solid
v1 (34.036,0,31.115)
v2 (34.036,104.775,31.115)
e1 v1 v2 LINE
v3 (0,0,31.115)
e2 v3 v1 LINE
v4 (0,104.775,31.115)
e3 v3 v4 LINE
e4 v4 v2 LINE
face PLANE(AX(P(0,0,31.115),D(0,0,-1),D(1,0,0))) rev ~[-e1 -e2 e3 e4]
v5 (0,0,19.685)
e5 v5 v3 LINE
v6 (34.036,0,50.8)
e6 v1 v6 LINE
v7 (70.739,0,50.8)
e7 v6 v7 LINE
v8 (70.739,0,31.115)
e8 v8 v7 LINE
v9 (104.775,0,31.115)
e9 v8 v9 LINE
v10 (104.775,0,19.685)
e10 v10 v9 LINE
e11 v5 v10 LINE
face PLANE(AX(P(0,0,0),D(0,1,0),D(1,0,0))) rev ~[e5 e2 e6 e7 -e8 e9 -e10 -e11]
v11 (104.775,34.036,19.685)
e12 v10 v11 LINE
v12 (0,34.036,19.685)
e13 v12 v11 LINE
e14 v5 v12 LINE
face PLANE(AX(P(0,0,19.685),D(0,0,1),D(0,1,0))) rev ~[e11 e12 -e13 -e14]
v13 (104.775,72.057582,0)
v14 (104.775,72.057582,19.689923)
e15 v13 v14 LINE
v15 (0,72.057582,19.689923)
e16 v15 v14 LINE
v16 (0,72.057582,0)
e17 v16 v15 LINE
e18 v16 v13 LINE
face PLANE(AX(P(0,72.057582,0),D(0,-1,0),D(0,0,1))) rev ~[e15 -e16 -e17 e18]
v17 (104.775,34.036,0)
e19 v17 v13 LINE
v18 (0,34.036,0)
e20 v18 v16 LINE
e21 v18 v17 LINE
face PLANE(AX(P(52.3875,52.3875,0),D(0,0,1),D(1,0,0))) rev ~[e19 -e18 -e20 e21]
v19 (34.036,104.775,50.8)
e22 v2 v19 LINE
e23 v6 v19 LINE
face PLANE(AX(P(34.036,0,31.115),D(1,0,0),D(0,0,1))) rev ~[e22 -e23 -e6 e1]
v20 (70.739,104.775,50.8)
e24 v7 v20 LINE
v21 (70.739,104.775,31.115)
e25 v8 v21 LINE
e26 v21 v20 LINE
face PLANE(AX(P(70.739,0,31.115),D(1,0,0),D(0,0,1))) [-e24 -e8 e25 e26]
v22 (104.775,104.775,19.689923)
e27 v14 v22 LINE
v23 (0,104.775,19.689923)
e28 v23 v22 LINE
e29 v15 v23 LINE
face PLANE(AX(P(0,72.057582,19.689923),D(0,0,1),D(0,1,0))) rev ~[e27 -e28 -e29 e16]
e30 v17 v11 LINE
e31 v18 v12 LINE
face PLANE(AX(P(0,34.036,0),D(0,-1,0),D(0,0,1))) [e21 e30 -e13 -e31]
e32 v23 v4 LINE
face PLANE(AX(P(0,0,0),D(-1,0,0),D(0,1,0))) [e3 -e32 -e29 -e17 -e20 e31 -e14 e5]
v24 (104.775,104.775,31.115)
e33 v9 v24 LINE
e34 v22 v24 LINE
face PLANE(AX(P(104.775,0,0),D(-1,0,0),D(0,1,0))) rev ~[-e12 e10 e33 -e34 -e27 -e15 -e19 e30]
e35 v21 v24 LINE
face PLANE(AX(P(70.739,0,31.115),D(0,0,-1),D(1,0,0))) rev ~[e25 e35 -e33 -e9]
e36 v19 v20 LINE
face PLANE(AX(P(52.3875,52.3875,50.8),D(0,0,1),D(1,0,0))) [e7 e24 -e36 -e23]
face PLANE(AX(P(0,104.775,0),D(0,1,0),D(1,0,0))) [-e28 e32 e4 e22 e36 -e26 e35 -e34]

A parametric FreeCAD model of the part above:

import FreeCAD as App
import Part
import Sketcher
Q = App.Units.Quantity

doc = App.newDocument("Part")
body = doc.addObject("PartDesign::Body", "Body")

sketch1 = doc.addObject("Sketcher::SketchObject", "Sketch")
body.addObject(sketch1)
sketch1.AttachmentSupport = (doc.XY_Plane, [""])
sketch1.MapMode = "FlatFace"
sketch1.addGeometry(Part.LineSegment(App.Vector(0, 105, 0), App.Vector(0, 0, 0)), False)
sketch1.addGeometry(Part.LineSegment(App.Vector(0, 0, 0), App.Vector(105, 0, 0)), False)
sketch1.addGeometry(Part.LineSegment(App.Vector(105, 0, 0), App.Vector(105, 105, 0)), False)
sketch1.addGeometry(Part.LineSegment(App.Vector(105, 105, 0), App.Vector(0, 105, 0)), False)
sketch1.addConstraint(Sketcher.Constraint("Coincident", 0, 2, 1, 1))
sketch1.addConstraint(Sketcher.Constraint("Coincident", 1, 2, 2, 1))
sketch1.addConstraint(Sketcher.Constraint("Coincident", 2, 2, 3, 1))
sketch1.addConstraint(Sketcher.Constraint("Coincident", 3, 2, 0, 1))
sketch1.addConstraint(Sketcher.Constraint("Vertical", 0))
sketch1.addConstraint(Sketcher.Constraint("Horizontal", 1))
sketch1.addConstraint(Sketcher.Constraint("Vertical", 2))
sketch1.addConstraint(Sketcher.Constraint("Horizontal", 3))
sketch1.addConstraint(Sketcher.Constraint("Coincident", 0, 2, -1, 1))
sketch1.addConstraint(Sketcher.Constraint("Equal", 3, 0))
sketch1.addConstraint(Sketcher.Constraint("DistanceX", 1, 1, 1, 2, Q("4.125 in")))
pad1 = doc.addObject("PartDesign::Pad", "Pad")
body.addObject(pad1)
pad1.Profile = sketch1
pad1.Length = Q("2 in")

sketch2 = doc.addObject("Sketcher::SketchObject", "Sketch001")
body.addObject(sketch2)
sketch2.AttachmentSupport = (doc.XZ_Plane, [""])
sketch2.MapMode = "FlatFace"
sketch2.addGeometry(Part.LineSegment(App.Vector(71, 51, 0), App.Vector(71, 31, 0)), False)
sketch2.addGeometry(Part.LineSegment(App.Vector(71, 31, 0), App.Vector(105, 31, 0)), False)
sketch2.addGeometry(Part.LineSegment(App.Vector(105, 31, 0), App.Vector(105, 51, 0)), False)
sketch2.addGeometry(Part.LineSegment(App.Vector(105, 51, 0), App.Vector(71, 51, 0)), False)
sketch2.addGeometry(Part.LineSegment(App.Vector(0, 51, 0), App.Vector(0, 31, 0)), False)
sketch2.addGeometry(Part.LineSegment(App.Vector(0, 31, 0), App.Vector(34, 31, 0)), False)
sketch2.addGeometry(Part.LineSegment(App.Vector(34, 31, 0), App.Vector(34, 51, 0)), False)
sketch2.addGeometry(Part.LineSegment(App.Vector(34, 51, 0), App.Vector(0, 51, 0)), False)
sketch2.addConstraint(Sketcher.Constraint("Coincident", 0, 2, 1, 1))
sketch2.addConstraint(Sketcher.Constraint("Coincident", 1, 2, 2, 1))
sketch2.addConstraint(Sketcher.Constraint("Coincident", 2, 2, 3, 1))
sketch2.addConstraint(Sketcher.Constraint("Coincident", 3, 2, 0, 1))
sketch2.addConstraint(Sketcher.Constraint("Coincident", 4, 2, 5, 1))
sketch2.addConstraint(Sketcher.Constraint("Coincident", 5, 2, 6, 1))
sketch2.addConstraint(Sketcher.Constraint("Coincident", 6, 2, 7, 1))
sketch2.addConstraint(Sketcher.Constraint("Coincident", 7, 2, 4, 1))
sketch2.addConstraint(Sketcher.Constraint("Vertical", 0))
sketch2.addConstraint(Sketcher.Constraint("Horizontal", 1))
sketch2.addConstraint(Sketcher.Constraint("Vertical", 2))
sketch2.addConstraint(Sketcher.Constraint("Horizontal", 3))
sketch2.addConstraint(Sketcher.Constraint("Vertical", 4))
sketch2.addConstraint(Sketcher.Constraint("Horizontal", 5))
sketch2.addConstraint(Sketcher.Constraint("Vertical", 6))
sketch2.addConstraint(Sketcher.Constraint("Horizontal", 7))
sketch2.addConstraint(Sketcher.Constraint("PointOnObject", 4, 2, -2))
sketch2.addConstraint(Sketcher.Constraint("Horizontal", 1, 2, 4, 2))
sketch2.addConstraint(Sketcher.Constraint("Horizontal", 3, 2, 6, 2))
sketch2.addConstraint(Sketcher.Constraint("Equal", 3, 5))
sketch2.addConstraint(Sketcher.Constraint("DistanceY", -1, 1, 2, 2, Q("2 in")))
sketch2.addConstraint(Sketcher.Constraint("DistanceX", 1, 1, 1, 2, Q("1.34 in")))
sketch2.addConstraint(Sketcher.Constraint("DistanceY", 0, 2, 0, 1, Q("0.775 in")))
sketch2.addConstraint(Sketcher.Constraint("DistanceX", -1, 1, 0, 2, Q("2.785 in")))
pocket1 = doc.addObject("PartDesign::Pocket", "Pocket")
body.addObject(pocket1)
pocket1.Profile = sketch2
pocket1.Length = Q("4.125 in")

sketch3 = doc.addObject("Sketcher::SketchObject", "Sketch002")
body.addObject(sketch3)
sketch3.AttachmentSupport = (doc.YZ_Plane, [""])
sketch3.MapMode = "FlatFace"
sketch3.addGeometry(Part.LineSegment(App.Vector(72, 20, 0), App.Vector(72, 0, 0)), False)
sketch3.addGeometry(Part.LineSegment(App.Vector(72, 0, 0), App.Vector(106, 0, 0)), False)
sketch3.addGeometry(Part.LineSegment(App.Vector(106, 0, 0), App.Vector(106, 20, 0)), False)
sketch3.addGeometry(Part.LineSegment(App.Vector(106, 20, 0), App.Vector(72, 20, 0)), False)
sketch3.addGeometry(Part.LineSegment(App.Vector(0, 20, 0), App.Vector(0, 0, 0)), False)
sketch3.addGeometry(Part.LineSegment(App.Vector(0, 0, 0), App.Vector(34, 0, 0)), False)
sketch3.addGeometry(Part.LineSegment(App.Vector(34, 0, 0), App.Vector(34, 20, 0)), False)
sketch3.addGeometry(Part.LineSegment(App.Vector(34, 20, 0), App.Vector(0, 20, 0)), False)
sketch3.addConstraint(Sketcher.Constraint("Coincident", 0, 2, 1, 1))
sketch3.addConstraint(Sketcher.Constraint("Coincident", 1, 2, 2, 1))
sketch3.addConstraint(Sketcher.Constraint("Coincident", 2, 2, 3, 1))
sketch3.addConstraint(Sketcher.Constraint("Coincident", 3, 2, 0, 1))
sketch3.addConstraint(Sketcher.Constraint("Coincident", 4, 2, 5, 1))
sketch3.addConstraint(Sketcher.Constraint("Coincident", 5, 2, 6, 1))
sketch3.addConstraint(Sketcher.Constraint("Coincident", 6, 2, 7, 1))
sketch3.addConstraint(Sketcher.Constraint("Coincident", 7, 2, 4, 1))
sketch3.addConstraint(Sketcher.Constraint("Vertical", 0))
sketch3.addConstraint(Sketcher.Constraint("Horizontal", 1))
sketch3.addConstraint(Sketcher.Constraint("Vertical", 2))
sketch3.addConstraint(Sketcher.Constraint("Horizontal", 3))
sketch3.addConstraint(Sketcher.Constraint("Vertical", 4))
sketch3.addConstraint(Sketcher.Constraint("Horizontal", 5))
sketch3.addConstraint(Sketcher.Constraint("Vertical", 6))
sketch3.addConstraint(Sketcher.Constraint("Horizontal", 7))
sketch3.addConstraint(Sketcher.Constraint("Coincident", 4, 2, -1, 1))
sketch3.addConstraint(Sketcher.Constraint("PointOnObject", 0, 2, -1))
sketch3.addConstraint(Sketcher.Constraint("Equal", 3, 5))
sketch3.addConstraint(Sketcher.Constraint("DistanceX", 1, 1, 1, 2, Q("1.34 in")))
sketch3.addConstraint(Sketcher.Constraint("DistanceY", 4, 2, 4, 1, Q("0.775 in")))
sketch3.addConstraint(Sketcher.Constraint("DistanceY", 0, 2, 0, 1, Q("19.689923 mm")))
sketch3.addConstraint(Sketcher.Constraint("DistanceX", -1, 1, 0, 2, Q("72.057582 mm")))
pocket2 = doc.addObject("PartDesign::Pocket", "Pocket001")
body.addObject(pocket2)
pocket2.Profile = sketch3
pocket2.Length = Q("6.23 in")
pocket2.Reversed = True

doc.recompute()
